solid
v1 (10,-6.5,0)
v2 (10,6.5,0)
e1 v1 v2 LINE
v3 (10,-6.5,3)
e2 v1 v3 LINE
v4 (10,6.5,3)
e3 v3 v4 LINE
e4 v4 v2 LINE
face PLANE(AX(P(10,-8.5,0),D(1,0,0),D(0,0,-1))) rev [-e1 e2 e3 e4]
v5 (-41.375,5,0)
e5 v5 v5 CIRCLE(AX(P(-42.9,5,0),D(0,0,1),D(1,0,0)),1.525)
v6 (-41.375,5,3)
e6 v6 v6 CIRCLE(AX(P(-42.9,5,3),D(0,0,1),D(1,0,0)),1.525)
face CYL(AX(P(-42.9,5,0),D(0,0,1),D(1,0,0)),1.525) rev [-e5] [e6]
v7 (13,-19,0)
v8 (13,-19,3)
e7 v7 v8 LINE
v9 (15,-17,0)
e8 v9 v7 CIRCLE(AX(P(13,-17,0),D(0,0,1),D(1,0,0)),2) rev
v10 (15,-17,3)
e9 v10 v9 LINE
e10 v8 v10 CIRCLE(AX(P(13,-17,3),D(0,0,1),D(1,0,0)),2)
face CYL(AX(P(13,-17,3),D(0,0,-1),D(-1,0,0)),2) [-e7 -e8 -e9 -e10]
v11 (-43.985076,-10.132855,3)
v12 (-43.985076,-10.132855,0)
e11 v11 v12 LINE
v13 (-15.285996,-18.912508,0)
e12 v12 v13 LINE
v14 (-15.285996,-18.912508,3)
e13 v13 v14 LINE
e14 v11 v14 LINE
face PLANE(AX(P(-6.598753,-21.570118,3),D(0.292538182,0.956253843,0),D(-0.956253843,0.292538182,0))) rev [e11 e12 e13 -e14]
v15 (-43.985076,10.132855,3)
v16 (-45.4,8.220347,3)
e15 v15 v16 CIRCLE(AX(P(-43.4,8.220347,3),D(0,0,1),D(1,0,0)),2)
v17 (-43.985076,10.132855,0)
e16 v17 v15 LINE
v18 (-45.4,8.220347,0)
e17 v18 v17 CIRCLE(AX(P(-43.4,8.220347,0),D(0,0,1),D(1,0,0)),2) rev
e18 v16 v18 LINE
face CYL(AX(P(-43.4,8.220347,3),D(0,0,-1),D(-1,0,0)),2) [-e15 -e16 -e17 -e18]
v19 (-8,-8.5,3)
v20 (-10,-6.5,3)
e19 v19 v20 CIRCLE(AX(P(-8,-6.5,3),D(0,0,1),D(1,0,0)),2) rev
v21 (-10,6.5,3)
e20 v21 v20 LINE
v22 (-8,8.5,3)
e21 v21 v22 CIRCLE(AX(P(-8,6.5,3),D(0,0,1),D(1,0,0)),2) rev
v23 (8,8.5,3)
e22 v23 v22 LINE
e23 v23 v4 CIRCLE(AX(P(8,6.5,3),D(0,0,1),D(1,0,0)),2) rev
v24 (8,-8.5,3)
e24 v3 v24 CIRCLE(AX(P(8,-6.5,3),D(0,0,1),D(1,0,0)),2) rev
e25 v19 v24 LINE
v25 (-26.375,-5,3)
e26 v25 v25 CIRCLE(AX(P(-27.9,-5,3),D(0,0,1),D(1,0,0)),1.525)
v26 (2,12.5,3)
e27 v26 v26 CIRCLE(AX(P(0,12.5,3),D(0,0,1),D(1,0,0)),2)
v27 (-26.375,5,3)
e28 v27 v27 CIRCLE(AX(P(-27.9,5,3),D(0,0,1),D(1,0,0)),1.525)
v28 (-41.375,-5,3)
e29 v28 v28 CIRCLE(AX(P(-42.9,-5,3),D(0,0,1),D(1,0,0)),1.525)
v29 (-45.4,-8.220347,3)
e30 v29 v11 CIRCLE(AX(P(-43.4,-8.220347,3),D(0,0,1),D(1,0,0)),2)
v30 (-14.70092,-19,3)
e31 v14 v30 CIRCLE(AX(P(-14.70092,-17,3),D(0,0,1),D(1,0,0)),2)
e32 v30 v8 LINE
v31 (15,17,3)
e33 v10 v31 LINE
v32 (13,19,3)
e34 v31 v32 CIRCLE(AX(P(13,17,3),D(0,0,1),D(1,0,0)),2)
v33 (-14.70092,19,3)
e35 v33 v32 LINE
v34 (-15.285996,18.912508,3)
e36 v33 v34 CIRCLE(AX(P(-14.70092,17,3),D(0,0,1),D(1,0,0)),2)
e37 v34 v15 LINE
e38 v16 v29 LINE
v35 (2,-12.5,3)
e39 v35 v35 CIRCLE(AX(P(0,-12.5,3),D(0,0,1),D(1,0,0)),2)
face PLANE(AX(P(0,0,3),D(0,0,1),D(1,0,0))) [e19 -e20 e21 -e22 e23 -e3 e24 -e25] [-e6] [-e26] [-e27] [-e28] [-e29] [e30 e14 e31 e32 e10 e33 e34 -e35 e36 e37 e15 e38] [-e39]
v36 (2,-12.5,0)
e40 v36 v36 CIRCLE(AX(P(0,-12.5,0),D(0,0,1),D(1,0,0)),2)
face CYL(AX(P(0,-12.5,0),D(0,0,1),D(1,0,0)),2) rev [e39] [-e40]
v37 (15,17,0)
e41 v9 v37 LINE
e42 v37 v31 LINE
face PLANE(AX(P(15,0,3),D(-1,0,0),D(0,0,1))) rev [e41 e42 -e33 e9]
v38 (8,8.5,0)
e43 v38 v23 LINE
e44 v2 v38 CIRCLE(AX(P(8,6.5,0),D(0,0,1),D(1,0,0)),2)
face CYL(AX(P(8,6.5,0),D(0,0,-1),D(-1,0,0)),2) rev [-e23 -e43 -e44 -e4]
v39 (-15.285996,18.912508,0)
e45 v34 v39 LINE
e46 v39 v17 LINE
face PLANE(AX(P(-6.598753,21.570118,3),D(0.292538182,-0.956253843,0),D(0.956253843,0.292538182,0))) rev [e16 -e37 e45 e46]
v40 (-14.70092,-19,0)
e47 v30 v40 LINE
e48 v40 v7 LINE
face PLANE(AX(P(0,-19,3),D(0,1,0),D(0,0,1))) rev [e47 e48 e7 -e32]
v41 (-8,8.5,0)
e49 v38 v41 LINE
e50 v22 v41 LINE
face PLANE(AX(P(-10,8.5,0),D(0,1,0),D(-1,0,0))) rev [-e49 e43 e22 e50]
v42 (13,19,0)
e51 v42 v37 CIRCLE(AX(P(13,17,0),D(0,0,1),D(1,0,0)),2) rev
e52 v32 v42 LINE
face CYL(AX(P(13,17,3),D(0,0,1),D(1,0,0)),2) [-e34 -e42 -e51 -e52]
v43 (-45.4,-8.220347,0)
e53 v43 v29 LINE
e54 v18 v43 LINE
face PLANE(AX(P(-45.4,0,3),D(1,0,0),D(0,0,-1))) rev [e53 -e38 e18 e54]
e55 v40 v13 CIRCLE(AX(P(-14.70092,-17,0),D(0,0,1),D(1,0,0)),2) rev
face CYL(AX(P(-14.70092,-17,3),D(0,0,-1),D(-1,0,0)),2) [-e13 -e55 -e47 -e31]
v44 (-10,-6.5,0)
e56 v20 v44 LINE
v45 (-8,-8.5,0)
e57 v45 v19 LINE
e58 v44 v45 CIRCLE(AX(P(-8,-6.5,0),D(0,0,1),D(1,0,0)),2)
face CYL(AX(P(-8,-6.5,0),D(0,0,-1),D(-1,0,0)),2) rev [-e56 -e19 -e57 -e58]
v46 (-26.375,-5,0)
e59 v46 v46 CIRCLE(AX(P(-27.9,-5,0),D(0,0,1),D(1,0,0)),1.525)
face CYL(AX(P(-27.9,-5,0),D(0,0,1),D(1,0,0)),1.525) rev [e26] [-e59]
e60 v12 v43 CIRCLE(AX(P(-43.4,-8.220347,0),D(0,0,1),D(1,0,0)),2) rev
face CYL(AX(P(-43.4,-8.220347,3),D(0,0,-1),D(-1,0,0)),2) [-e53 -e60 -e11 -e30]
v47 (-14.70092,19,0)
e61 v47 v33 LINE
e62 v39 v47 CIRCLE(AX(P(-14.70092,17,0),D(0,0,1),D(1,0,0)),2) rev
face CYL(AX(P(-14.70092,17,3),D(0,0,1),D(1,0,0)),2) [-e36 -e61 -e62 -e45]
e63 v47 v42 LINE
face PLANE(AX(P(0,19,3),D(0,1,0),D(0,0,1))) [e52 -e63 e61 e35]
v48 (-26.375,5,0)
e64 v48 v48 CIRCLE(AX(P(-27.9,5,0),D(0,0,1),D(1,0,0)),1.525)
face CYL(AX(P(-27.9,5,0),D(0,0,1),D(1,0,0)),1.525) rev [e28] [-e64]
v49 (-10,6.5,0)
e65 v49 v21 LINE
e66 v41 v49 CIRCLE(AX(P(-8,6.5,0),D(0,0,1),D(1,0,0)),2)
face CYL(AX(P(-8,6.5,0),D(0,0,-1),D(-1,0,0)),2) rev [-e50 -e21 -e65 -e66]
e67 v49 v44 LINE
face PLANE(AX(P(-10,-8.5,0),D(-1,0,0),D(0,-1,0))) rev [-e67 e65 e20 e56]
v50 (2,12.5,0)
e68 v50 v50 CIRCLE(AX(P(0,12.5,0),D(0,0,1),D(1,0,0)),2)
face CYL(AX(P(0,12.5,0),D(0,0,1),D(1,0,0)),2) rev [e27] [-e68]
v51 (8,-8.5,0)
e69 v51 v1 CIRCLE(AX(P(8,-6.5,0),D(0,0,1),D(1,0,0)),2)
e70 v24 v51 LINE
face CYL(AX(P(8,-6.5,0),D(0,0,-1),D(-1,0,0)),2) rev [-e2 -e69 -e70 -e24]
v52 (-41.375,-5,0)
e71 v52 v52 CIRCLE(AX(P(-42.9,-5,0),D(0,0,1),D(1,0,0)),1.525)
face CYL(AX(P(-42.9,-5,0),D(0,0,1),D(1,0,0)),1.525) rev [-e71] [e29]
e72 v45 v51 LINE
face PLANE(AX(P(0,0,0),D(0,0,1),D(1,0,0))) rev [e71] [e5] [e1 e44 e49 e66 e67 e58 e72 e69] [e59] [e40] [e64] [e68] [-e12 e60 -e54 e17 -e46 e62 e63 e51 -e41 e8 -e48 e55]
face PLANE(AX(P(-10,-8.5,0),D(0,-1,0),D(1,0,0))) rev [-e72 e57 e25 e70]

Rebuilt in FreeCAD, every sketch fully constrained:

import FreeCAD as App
import Part
import Sketcher

V = App.Vector
Q = App.Units.Quantity


def edges_at(feature, points):
    """Names of the edges that pass closest to the given points."""
    edges = feature.Shape.Edges
    near = lambda p: min(range(len(edges)), key=lambda i: edges[i].distToShape(Part.Vertex(*p))[0])
    return sorted({f"Edge{near(p) + 1}" for p in points})


def add_polygon(sketch, points):
    """Adds a closed chain of lines whose ends are joined by coincident constraints."""
    first, n = sketch.GeometryCount, len(points)
    for a, b in zip(points, points[1:] + points[:1]):
        sketch.addGeometry(Part.LineSegment(App.Vector(*a, 0), App.Vector(*b, 0)), False)
    for i in range(n):
        sketch.addConstraint(Sketcher.Constraint("Coincident", first + i, 2, first + (i + 1) % n, 1))

doc = App.newDocument("Part")
params = doc.addObject("Spreadsheet::Sheet", "Params")
for row, (alias, value) in enumerate([
    ("sketch1_width", "30 mm"),
    ("sketch1_height", "38 mm"),
    ("sketch1_height2", "19.4 mm"),
    ("pad1_length", "3 mm"),
    ("sketch2_diameter", "4 mm"),
    ("pocket1_length", "3 mm"),
    ("sketch3_diameter", "3.05 mm"),
    ("pocket2_length", "3 mm"),
    ("fillet_radius", "2 mm"),
    ("sketch4_width", "20 mm"),
    ("sketch4_height", "17 mm"),
    ("pocket3_length", "3 mm"),
    ("fillet2_radius", "2 mm"),
], start=1):
    params.set(f"A{row}", alias)
    params.set(f"B{row}", "=" + value)
    params.setAlias(f"B{row}", alias)

body = doc.addObject("PartDesign::Body", "Body")

sketch1 = body.newObject("Sketcher::SketchObject", "Sketch")
sketch1.AttachmentSupport = (doc.getObject("XY_Plane"), [""])
sketch1.MapMode = "FlatFace"
add_polygon(sketch1, [(-45.4, 9.7), (-45.4, -9.7), (-15, -19), (15, -19), (15, 19), (-15, 19)])
sketch1.addConstraint([
    Sketcher.Constraint("Vertical", 0),
    Sketcher.Constraint("Horizontal", 2),
    Sketcher.Constraint("Vertical", 3),
    Sketcher.Constraint("Horizontal", 4),
    Sketcher.Constraint("Symmetric", 1, 2, 3, 2, -1, 1),
    Sketcher.Constraint("Vertical", 1, 2, 4, 2),
    Sketcher.Constraint("Equal", 1, 5),
    Sketcher.Constraint("DistanceX", 2, 1, 2, 2, Q("30 mm")),
    Sketcher.Constraint("DistanceY", 3, 1, 3, 2, Q("38 mm")),
    Sketcher.Constraint("DistanceY", 0, 2, 0, 1, Q("19.4 mm")),
    Sketcher.Constraint("DistanceX", 0, 2, -1, 1, Q("45.4 mm")),
])
sketch1.setExpression("Constraints[13]", "Params.sketch1_width")
sketch1.setExpression("Constraints[14]", "Params.sketch1_height")
sketch1.setExpression("Constraints[15]", "Params.sketch1_height2")
pad1 = body.newObject("PartDesign::Pad", "Pad")
pad1.Profile = sketch1
pad1.setExpression("Length", "Params.pad1_length")

sketch2 = body.newObject("Sketcher::SketchObject", "Sketch001")
sketch2.AttachmentSupport = (doc.getObject("XY_Plane"), [""])
sketch2.MapMode = "FlatFace"
sketch2.AttachmentOffset = App.Placement(V(0, 0, 3), App.Rotation())
sketch2.addGeometry([
    Part.Circle(V(0, 12.5, 0), V(0, 0, 1), 2),
    Part.Circle(V(0, -12.5, 0), V(0, 0, 1), 2),
], False)
sketch2.addConstraint([
    Sketcher.Constraint("Equal", 0, 1),
    Sketcher.Constraint("Symmetric", 0, 3, 1, 3, -1, 1),
    Sketcher.Constraint("PointOnObject", 0, 3, -2),
    Sketcher.Constraint("Diameter", 0, Q("4 mm")),
    Sketcher.Constraint("DistanceY", 1, 3, 0, 3, Q("25 mm")),
])
sketch2.setExpression("Constraints[3]", "Params.sketch2_diameter")
pocket1 = body.newObject("PartDesign::Pocket", "Pocket")
pocket1.Profile = sketch2
pocket1.setExpression("Length", "Params.pocket1_length")

sketch3 = body.newObject("Sketcher::SketchObject", "Sketch002")
sketch3.AttachmentSupport = (doc.getObject("XY_Plane"), [""])
sketch3.MapMode = "FlatFace"
sketch3.AttachmentOffset = App.Placement(V(0, 0, 3), App.Rotation())
sketch3.addGeometry([
    Part.Circle(V(-42.9, 5, 0), V(0, 0, 1), 1.525),
    Part.Circle(V(-27.9, 5, 0), V(0, 0, 1), 1.525),
    Part.Circle(V(-42.9, -5, 0), V(0, 0, 1), 1.525),
    Part.Circle(V(-27.9, -5, 0), V(0, 0, 1), 1.525),
], False)
sketch3.addConstraint([
    Sketcher.Constraint("Equal", 0, 1),
    Sketcher.Constraint("Equal", 1, 2),
    Sketcher.Constraint("Equal", 2, 3),
    Sketcher.Constraint("Symmetric", 0, 3, 2, 3, -1),
    Sketcher.Constraint("Symmetric", 1, 3, 3, 3, -1),
    Sketcher.Constraint("Horizontal", 0, 3, 1, 3),
    Sketcher.Constraint("Diameter", 0, Q("3.05 mm")),
    Sketcher.Constraint("DistanceY", -1, 1, 0, 3, Q("5 mm")),
    Sketcher.Constraint("DistanceX", 0, 3, 1, 3, Q("15 mm")),
    Sketcher.Constraint("DistanceX", 0, 3, -1, 1, Q("42.9 mm")),
])
sketch3.setExpression("Constraints[6]", "Params.sketch3_diameter")
pocket2 = body.newObject("PartDesign::Pocket", "Pocket001")
pocket2.Profile = sketch3
pocket2.setExpression("Length", "Params.pocket2_length")
doc.recompute()

fillet = body.newObject("PartDesign::Fillet", "Fillet")
fillet.Base = (pocket2, edges_at(pocket2, [
    (-45.4, 9.7, 1.5),
    (-15, 19, 1.5),
    (15, 19, 1.5),
    (15, -19, 1.5),
    (-15, -19, 1.5),
    (-45.4, -9.7, 1.5),
]))
fillet.setExpression("Radius", "Params.fillet_radius")

sketch4 = body.newObject("Sketcher::SketchObject", "Sketch003")
sketch4.AttachmentSupport = (doc.getObject("XY_Plane"), [""])
sketch4.MapMode = "FlatFace"
sketch4.AttachmentOffset = App.Placement(V(0, 0, 3), App.Rotation())
add_polygon(sketch4, [(-10, 8.5), (-10, -8.5), (10, -8.5), (10, 8.5)])
sketch4.addConstraint([
    Sketcher.Constraint("Vertical", 0),
    Sketcher.Constraint("Horizontal", 1),
    Sketcher.Constraint("Vertical", 2),
    Sketcher.Constraint("Horizontal", 3),
    Sketcher.Constraint("Symmetric", 0, 2, 2, 2, -1, 1),
    Sketcher.Constraint("DistanceX", 1, 1, 1, 2, Q("20 mm")),
    Sketcher.Constraint("DistanceY", 0, 2, 0, 1, Q("17 mm")),
])
sketch4.setExpression("Constraints[9]", "Params.sketch4_width")
sketch4.setExpression("Constraints[10]", "Params.sketch4_height")
pocket3 = body.newObject("PartDesign::Pocket", "Pocket002")
pocket3.Profile = sketch4
pocket3.setExpression("Length", "Params.pocket3_length")
doc.recompute()

fillet2 = body.newObject("PartDesign::Fillet", "Fillet001")
fillet2.Base = (pocket3, edges_at(pocket3, [
    (10, 8.5, 1.5),
    (10, -8.5, 1.5),
    (-10, -8.5, 1.5),
    (-10, 8.5, 1.5),
]))
fillet2.setExpression("Radius", "Params.fillet2_radius")

doc.recompute()
